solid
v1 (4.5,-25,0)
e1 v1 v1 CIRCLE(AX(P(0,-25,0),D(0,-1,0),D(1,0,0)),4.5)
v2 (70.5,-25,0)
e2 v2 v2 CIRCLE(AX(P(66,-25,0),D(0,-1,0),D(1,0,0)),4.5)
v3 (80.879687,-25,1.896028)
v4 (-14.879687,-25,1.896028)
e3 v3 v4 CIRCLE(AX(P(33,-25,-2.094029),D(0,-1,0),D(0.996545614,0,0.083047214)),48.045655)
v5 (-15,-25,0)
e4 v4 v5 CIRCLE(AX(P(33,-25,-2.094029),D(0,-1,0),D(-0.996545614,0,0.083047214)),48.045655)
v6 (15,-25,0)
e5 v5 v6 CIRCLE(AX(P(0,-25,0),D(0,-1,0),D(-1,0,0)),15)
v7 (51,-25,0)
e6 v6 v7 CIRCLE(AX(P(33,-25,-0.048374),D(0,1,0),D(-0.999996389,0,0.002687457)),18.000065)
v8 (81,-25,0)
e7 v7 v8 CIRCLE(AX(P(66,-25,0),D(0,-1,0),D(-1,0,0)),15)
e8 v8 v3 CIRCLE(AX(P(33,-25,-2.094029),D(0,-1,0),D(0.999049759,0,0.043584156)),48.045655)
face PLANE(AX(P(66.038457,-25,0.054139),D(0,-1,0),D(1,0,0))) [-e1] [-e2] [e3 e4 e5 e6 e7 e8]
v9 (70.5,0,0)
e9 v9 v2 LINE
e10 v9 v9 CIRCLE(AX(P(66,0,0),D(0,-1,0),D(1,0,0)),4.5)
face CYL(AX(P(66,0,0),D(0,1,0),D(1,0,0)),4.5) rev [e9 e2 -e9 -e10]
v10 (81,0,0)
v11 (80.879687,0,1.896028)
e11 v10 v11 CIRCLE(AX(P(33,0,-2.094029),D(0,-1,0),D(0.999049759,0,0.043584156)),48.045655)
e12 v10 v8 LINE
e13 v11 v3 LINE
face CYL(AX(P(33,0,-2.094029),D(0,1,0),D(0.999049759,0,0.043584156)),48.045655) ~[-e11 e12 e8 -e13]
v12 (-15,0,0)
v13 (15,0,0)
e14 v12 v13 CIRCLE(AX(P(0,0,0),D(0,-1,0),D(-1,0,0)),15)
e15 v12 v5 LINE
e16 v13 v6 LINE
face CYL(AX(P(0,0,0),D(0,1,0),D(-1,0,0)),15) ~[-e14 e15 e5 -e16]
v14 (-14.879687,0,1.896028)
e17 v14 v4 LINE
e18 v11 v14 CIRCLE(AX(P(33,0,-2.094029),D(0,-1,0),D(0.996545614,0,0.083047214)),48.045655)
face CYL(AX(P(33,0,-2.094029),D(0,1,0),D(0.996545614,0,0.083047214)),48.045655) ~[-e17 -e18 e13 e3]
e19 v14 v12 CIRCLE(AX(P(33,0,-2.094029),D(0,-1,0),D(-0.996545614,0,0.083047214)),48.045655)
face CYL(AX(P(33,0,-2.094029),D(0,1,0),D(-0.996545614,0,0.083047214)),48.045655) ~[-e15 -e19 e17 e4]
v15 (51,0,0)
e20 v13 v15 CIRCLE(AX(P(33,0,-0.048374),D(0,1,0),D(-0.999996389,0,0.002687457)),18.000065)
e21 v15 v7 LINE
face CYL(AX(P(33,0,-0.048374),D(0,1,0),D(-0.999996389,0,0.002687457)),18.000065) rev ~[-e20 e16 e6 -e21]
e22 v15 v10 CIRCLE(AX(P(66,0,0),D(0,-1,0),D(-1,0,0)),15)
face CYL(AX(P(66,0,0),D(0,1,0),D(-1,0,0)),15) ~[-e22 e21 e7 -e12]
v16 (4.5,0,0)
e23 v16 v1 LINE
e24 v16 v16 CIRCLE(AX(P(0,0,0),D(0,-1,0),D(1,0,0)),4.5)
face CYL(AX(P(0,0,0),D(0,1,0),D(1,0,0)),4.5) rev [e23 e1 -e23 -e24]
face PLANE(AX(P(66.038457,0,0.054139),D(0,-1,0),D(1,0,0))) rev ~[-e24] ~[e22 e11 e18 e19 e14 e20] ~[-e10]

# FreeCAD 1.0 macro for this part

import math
import FreeCAD as App
import Part
import Sketcher

V = App.Vector

doc = App.newDocument("Part")
params = doc.addObject("Spreadsheet::Sheet", "Params")
for row, (alias, value) in enumerate([
    ("sketch1_diameter", "9 mm"),
    ("sketch1_radius", "15 mm"),
    ("pad1_length", "25 mm"),
], start=1):
    params.set(f"A{row}", alias)
    params.set(f"B{row}", "=" + value)
    params.setAlias(f"B{row}", alias)

body = doc.addObject("PartDesign::Body", "Body")

# Sketch on XZ plane
sketch1 = body.newObject("Sketcher::SketchObject", "Sketch")
sketch1.AttachmentSupport = (doc.getObject("XZ_Plane"), [""])
sketch1.MapMode = "FlatFace"
sketch1.addGeometry([
    Part.ArcOfCircle(Part.Circle(V(33, -2.094029, 0), V(0, 0, 1), 48.045655), math.radians(2.497979), math.radians(4.763741)),  # 0
    Part.ArcOfCircle(Part.Circle(V(33, -2.094029, 0), V(0, 0, 1), 48.045655), math.radians(4.763741), math.radians(175.236259)),  # 1
    Part.ArcOfCircle(Part.Circle(V(33, -2.094029, 0), V(0, 0, 1), 48.045655), math.radians(175.236259), math.radians(177.502021)),  # 2
    Part.ArcOfCircle(Part.Circle(V(0, 0, 0), V(0, 0, 1), 15), math.radians(180), math.radians(360)),  # 3
    Part.ArcOfCircle(Part.Circle(V(33, -0.048374, 0), V(0, 0, 1), 18.000065), math.radians(0.15398), math.radians(179.84602)),  # 4
    Part.ArcOfCircle(Part.Circle(V(66, 0, 0), V(0, 0, 1), 15), math.radians(180), math.radians(360)),  # 5
    Part.Circle(V(0, 0, 0), V(0, 0, 1), 4.5),  # 6
    Part.Circle(V(66, 0, 0), V(0, 0, 1), 4.5),  # 7
], False)
sketch1.addConstraint([
    Sketcher.Constraint("Tangent", 0, 2, 1, 1),
    Sketcher.Constraint("Tangent", 1, 2, 2, 1),
    Sketcher.Constraint("Coincident", 2, 2, 3, 1),
    Sketcher.Constraint("Coincident", 3, 2, 4, 2),
    Sketcher.Constraint("Coincident", 4, 1, 5, 1),
    Sketcher.Constraint("Coincident", 5, 2, 0, 1),
    Sketcher.Constraint("Coincident", 3, 3, -1, 1),
    Sketcher.Constraint("Coincident", 6, 3, -1, 1),
    Sketcher.Constraint("Coincident", 2, 3, 0, 3),
    Sketcher.Constraint("Coincident", 7, 3, 5, 3),
    Sketcher.Constraint("Equal", 3, 5),
    Sketcher.Constraint("Equal", 6, 7),
    Sketcher.Constraint("PointOnObject", 5, 3, -1),
    Sketcher.Constraint("PointOnObject", 2, 2, -1),
    Sketcher.Constraint("PointOnObject", 3, 2, -1),
    Sketcher.Constraint("PointOnObject", 4, 1, -1),
    Sketcher.Constraint("PointOnObject", 5, 2, -1),
    Sketcher.Constraint("Horizontal", 0, 2, 1, 2),
    Sketcher.Constraint("Diameter", 6, 9.0),
    Sketcher.Constraint("Radius", 3, 15.0),
    Sketcher.Constraint("DistanceX", -1, 1, 0, 3, 33.0),
    Sketcher.Constraint("Radius", 0, 48.045655),
    Sketcher.Constraint("Radius", 4, 18.000065),
    Sketcher.Constraint("DistanceY", -1, 1, 0, 2, 1.896028),
])
sketch1.setExpression("Constraints[18]", "Params.sketch1_diameter")
sketch1.setExpression("Constraints[19]", "Params.sketch1_radius")
pad1 = body.newObject("PartDesign::Pad", "Pad")
pad1.Profile = sketch1
pad1.setExpression("Length", "Params.pad1_length")

doc.recompute()
